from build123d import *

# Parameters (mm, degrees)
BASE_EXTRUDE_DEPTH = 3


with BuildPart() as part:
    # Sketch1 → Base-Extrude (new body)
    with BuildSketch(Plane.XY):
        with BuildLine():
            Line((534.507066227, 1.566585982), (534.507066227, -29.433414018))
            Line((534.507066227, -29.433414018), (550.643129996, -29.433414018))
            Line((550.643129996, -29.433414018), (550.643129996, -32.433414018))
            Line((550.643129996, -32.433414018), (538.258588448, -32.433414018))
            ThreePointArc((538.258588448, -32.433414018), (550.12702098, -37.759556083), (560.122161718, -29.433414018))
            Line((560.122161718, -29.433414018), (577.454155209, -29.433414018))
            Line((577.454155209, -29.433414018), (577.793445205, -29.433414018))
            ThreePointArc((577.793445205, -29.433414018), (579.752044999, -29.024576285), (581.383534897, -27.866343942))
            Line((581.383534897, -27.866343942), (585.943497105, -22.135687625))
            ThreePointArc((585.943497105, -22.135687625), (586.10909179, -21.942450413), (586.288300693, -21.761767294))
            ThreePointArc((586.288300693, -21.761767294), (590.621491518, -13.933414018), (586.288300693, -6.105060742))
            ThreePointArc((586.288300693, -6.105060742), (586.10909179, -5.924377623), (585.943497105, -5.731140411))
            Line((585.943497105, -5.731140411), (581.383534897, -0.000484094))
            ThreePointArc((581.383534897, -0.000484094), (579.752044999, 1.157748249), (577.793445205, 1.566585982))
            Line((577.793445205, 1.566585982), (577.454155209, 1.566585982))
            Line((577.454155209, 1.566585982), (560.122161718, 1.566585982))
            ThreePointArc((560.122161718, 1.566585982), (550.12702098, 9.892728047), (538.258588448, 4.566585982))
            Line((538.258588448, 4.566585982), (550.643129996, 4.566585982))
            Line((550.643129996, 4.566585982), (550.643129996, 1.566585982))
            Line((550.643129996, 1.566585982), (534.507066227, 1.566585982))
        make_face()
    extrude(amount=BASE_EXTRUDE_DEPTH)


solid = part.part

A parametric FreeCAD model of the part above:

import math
import FreeCAD as App
import Part
import Sketcher
from FreeCAD import Vector
Q = App.Units.Quantity

doc = App.newDocument("Part")
body = doc.addObject("PartDesign::Body", "Body")

sketch1 = body.newObject("Sketcher::SketchObject", "Sketch")
sketch1.AttachmentSupport = (doc.getObject("XY_Plane"), [""])
sketch1.MapMode = "FlatFace"
sketch1.addGeometry([
    Part.LineSegment(Vector(534.507066, 1.566586, 0), Vector(534.507066, -29.433414, 0)),
    Part.LineSegment(Vector(534.507066, -29.433414, 0), Vector(550.64313, -29.433414, 0)),
    Part.LineSegment(Vector(550.64313, -29.433414, 0), Vector(550.64313, -32.433414, 0)),
    Part.LineSegment(Vector(550.64313, -32.433414, 0), Vector(538.258588, -32.433414, 0)),
    Part.ArcOfCircle(Part.Circle(Vector(548.457604, -25.593081, 0), Vector(0, 0, 1), 12.280475), math.radians(-146.150811), math.radians(-18.223143)),
    Part.LineSegment(Vector(560.122162, -29.433414, 0), Vector(577.793445, -29.433414, 0)),
    Part.ArcOfCircle(Part.Circle(Vector(577.793445, -24.537509, 0), Vector(0, 0, 1), 4.895905), math.radians(-90), math.radians(-42.837571)),
    Part.LineSegment(Vector(581.383535, -27.866344, 0), Vector(585.943497, -22.135688, 0)),
    Part.ArcOfCircle(Part.Circle(Vector(588.679966, -24.313134, 0), Vector(0, 0, 1), 3.497075), math.radians(133.149514), math.radians(141.490251)),
    Part.ArcOfCircle(Part.Circle(Vector(581.383535, -13.933414, 0), Vector(0, 0, 1), 9.237957), math.radians(-57.931267), math.radians(57.931267)),
    Part.ArcOfCircle(Part.Circle(Vector(588.679966, -3.553694, 0), Vector(0, 0, 1), 3.497075), math.radians(-141.490251), math.radians(-133.149514)),
    Part.LineSegment(Vector(585.943497, -5.73114, 0), Vector(581.383535, -0.000484, 0)),
    Part.ArcOfCircle(Part.Circle(Vector(577.793445, -3.329319, 0), Vector(0, 0, 1), 4.895905), math.radians(42.837571), math.radians(90)),
    Part.LineSegment(Vector(577.793445, 1.566586, 0), Vector(560.122162, 1.566586, 0)),
    Part.ArcOfCircle(Part.Circle(Vector(548.457604, -2.273747, 0), Vector(0, 0, 1), 12.280475), math.radians(18.223143), math.radians(146.150811)),
    Part.LineSegment(Vector(538.258588, 4.566586, 0), Vector(550.64313, 4.566586, 0)),
    Part.LineSegment(Vector(550.64313, 4.566586, 0), Vector(550.64313, 1.566586, 0)),
    Part.LineSegment(Vector(550.64313, 1.566586, 0), Vector(534.507066, 1.566586, 0)),
], False)
sketch1.addConstraint([
    Sketcher.Constraint("Coincident", 0, 2, 1, 1),
    Sketcher.Constraint("Coincident", 1, 2, 2, 1),
    Sketcher.Constraint("Coincident", 2, 2, 3, 1),
    Sketcher.Constraint("Coincident", 3, 2, 4, 1),
    Sketcher.Constraint("Coincident", 4, 2, 5, 1),
    Sketcher.Constraint("Tangent", 5, 2, 6, 1),
    Sketcher.Constraint("Coincident", 6, 2, 7, 1),
    Sketcher.Constraint("Tangent", 7, 2, 8, 2),
    Sketcher.Constraint("Coincident", 8, 1, 9, 1),
    Sketcher.Constraint("Coincident", 9, 2, 10, 2),
    Sketcher.Constraint("Tangent", 10, 1, 11, 1),
    Sketcher.Constraint("Coincident", 11, 2, 12, 1),
    Sketcher.Constraint("Tangent", 12, 2, 13, 1),
    Sketcher.Constraint("Coincident", 13, 2, 14, 1),
    Sketcher.Constraint("Coincident", 14, 2, 15, 1),
    Sketcher.Constraint("Coincident", 15, 2, 16, 1),
    Sketcher.Constraint("Coincident", 16, 2, 17, 1),
    Sketcher.Constraint("Coincident", 17, 2, 0, 1),
    Sketcher.Constraint("Vertical", 0),
    Sketcher.Constraint("Horizontal", 1),
    Sketcher.Constraint("Vertical", 2),
    Sketcher.Constraint("Horizontal", 3),
    Sketcher.Constraint("Horizontal", 5),
    Sketcher.Constraint("Horizontal", 13),
    Sketcher.Constraint("Horizontal", 15),
    Sketcher.Constraint("Vertical", 16),
    Sketcher.Constraint("Horizontal", 17),
    Sketcher.Constraint("Equal", 8, 10),
    Sketcher.Constraint("Equal", 6, 12),
    Sketcher.Constraint("Equal", 4, 14),
    Sketcher.Constraint("Horizontal", 1, 2, 4, 2),
    Sketcher.Constraint("Horizontal", 13, 2, 16, 2),
    Sketcher.Constraint("Vertical", 8, 3, 10, 3),
    Sketcher.Constraint("Vertical", 6, 3, 12, 3),
    Sketcher.Constraint("Vertical", 4, 3, 14, 3),
    Sketcher.Constraint("Vertical", 9, 3, 6, 2),
    Sketcher.Constraint("Vertical", 8, 1, 9, 2),
    Sketcher.Constraint("Vertical", 7, 2, 10, 1),
    Sketcher.Constraint("Vertical", 6, 2, 11, 2),
    Sketcher.Constraint("Vertical", 4, 2, 13, 2),
    Sketcher.Constraint("Vertical", 3, 2, 14, 2),
    Sketcher.Constraint("Vertical", 2, 2, 15, 2),
    Sketcher.Constraint("DistanceY", 0, 2, 0, 1, Q("31 mm")),
    Sketcher.Constraint("DistanceY", 2, 2, 2, 1, Q("3 mm")),
    Sketcher.Constraint("Radius", 4, Q("12.280475 mm")),
    Sketcher.Constraint("Radius", 6, Q("4.895905 mm")),
    Sketcher.Constraint("Radius", 8, Q("3.497075 mm")),
    Sketcher.Constraint("Radius", 9, Q("9.237957 mm")),
    Sketcher.Constraint("Distance", 7, Q("7.323502 mm")),
    Sketcher.Constraint("DistanceX", 3, 2, 3, 1, Q("12.384542 mm")),
    Sketcher.Constraint("DistanceX", -1, 1, 8, 1, Q("586.288301 mm")),
    Sketcher.Constraint("DistanceX", 1, 1, 1, 2, Q("16.136064 mm")),
    Sketcher.Constraint("DistanceX", 5, 1, 5, 2, Q("17.671283 mm")),
    Sketcher.Constraint("DistanceY", 4, 3, -1, 1, Q("25.593081 mm")),
    Sketcher.Constraint("DistanceY", 6, 3, -1, 1, Q("24.537509 mm")),
    Sketcher.Constraint("DistanceX", -1, 1, 1, 2, Q("550.64313 mm")),
    Sketcher.Constraint("DistanceY", 9, 2, -1, 1, Q("6.105061 mm")),
])
pad1 = body.newObject("PartDesign::Pad", "Pad")
pad1.Profile = sketch1
pad1.Length = 3

doc.recompute()
